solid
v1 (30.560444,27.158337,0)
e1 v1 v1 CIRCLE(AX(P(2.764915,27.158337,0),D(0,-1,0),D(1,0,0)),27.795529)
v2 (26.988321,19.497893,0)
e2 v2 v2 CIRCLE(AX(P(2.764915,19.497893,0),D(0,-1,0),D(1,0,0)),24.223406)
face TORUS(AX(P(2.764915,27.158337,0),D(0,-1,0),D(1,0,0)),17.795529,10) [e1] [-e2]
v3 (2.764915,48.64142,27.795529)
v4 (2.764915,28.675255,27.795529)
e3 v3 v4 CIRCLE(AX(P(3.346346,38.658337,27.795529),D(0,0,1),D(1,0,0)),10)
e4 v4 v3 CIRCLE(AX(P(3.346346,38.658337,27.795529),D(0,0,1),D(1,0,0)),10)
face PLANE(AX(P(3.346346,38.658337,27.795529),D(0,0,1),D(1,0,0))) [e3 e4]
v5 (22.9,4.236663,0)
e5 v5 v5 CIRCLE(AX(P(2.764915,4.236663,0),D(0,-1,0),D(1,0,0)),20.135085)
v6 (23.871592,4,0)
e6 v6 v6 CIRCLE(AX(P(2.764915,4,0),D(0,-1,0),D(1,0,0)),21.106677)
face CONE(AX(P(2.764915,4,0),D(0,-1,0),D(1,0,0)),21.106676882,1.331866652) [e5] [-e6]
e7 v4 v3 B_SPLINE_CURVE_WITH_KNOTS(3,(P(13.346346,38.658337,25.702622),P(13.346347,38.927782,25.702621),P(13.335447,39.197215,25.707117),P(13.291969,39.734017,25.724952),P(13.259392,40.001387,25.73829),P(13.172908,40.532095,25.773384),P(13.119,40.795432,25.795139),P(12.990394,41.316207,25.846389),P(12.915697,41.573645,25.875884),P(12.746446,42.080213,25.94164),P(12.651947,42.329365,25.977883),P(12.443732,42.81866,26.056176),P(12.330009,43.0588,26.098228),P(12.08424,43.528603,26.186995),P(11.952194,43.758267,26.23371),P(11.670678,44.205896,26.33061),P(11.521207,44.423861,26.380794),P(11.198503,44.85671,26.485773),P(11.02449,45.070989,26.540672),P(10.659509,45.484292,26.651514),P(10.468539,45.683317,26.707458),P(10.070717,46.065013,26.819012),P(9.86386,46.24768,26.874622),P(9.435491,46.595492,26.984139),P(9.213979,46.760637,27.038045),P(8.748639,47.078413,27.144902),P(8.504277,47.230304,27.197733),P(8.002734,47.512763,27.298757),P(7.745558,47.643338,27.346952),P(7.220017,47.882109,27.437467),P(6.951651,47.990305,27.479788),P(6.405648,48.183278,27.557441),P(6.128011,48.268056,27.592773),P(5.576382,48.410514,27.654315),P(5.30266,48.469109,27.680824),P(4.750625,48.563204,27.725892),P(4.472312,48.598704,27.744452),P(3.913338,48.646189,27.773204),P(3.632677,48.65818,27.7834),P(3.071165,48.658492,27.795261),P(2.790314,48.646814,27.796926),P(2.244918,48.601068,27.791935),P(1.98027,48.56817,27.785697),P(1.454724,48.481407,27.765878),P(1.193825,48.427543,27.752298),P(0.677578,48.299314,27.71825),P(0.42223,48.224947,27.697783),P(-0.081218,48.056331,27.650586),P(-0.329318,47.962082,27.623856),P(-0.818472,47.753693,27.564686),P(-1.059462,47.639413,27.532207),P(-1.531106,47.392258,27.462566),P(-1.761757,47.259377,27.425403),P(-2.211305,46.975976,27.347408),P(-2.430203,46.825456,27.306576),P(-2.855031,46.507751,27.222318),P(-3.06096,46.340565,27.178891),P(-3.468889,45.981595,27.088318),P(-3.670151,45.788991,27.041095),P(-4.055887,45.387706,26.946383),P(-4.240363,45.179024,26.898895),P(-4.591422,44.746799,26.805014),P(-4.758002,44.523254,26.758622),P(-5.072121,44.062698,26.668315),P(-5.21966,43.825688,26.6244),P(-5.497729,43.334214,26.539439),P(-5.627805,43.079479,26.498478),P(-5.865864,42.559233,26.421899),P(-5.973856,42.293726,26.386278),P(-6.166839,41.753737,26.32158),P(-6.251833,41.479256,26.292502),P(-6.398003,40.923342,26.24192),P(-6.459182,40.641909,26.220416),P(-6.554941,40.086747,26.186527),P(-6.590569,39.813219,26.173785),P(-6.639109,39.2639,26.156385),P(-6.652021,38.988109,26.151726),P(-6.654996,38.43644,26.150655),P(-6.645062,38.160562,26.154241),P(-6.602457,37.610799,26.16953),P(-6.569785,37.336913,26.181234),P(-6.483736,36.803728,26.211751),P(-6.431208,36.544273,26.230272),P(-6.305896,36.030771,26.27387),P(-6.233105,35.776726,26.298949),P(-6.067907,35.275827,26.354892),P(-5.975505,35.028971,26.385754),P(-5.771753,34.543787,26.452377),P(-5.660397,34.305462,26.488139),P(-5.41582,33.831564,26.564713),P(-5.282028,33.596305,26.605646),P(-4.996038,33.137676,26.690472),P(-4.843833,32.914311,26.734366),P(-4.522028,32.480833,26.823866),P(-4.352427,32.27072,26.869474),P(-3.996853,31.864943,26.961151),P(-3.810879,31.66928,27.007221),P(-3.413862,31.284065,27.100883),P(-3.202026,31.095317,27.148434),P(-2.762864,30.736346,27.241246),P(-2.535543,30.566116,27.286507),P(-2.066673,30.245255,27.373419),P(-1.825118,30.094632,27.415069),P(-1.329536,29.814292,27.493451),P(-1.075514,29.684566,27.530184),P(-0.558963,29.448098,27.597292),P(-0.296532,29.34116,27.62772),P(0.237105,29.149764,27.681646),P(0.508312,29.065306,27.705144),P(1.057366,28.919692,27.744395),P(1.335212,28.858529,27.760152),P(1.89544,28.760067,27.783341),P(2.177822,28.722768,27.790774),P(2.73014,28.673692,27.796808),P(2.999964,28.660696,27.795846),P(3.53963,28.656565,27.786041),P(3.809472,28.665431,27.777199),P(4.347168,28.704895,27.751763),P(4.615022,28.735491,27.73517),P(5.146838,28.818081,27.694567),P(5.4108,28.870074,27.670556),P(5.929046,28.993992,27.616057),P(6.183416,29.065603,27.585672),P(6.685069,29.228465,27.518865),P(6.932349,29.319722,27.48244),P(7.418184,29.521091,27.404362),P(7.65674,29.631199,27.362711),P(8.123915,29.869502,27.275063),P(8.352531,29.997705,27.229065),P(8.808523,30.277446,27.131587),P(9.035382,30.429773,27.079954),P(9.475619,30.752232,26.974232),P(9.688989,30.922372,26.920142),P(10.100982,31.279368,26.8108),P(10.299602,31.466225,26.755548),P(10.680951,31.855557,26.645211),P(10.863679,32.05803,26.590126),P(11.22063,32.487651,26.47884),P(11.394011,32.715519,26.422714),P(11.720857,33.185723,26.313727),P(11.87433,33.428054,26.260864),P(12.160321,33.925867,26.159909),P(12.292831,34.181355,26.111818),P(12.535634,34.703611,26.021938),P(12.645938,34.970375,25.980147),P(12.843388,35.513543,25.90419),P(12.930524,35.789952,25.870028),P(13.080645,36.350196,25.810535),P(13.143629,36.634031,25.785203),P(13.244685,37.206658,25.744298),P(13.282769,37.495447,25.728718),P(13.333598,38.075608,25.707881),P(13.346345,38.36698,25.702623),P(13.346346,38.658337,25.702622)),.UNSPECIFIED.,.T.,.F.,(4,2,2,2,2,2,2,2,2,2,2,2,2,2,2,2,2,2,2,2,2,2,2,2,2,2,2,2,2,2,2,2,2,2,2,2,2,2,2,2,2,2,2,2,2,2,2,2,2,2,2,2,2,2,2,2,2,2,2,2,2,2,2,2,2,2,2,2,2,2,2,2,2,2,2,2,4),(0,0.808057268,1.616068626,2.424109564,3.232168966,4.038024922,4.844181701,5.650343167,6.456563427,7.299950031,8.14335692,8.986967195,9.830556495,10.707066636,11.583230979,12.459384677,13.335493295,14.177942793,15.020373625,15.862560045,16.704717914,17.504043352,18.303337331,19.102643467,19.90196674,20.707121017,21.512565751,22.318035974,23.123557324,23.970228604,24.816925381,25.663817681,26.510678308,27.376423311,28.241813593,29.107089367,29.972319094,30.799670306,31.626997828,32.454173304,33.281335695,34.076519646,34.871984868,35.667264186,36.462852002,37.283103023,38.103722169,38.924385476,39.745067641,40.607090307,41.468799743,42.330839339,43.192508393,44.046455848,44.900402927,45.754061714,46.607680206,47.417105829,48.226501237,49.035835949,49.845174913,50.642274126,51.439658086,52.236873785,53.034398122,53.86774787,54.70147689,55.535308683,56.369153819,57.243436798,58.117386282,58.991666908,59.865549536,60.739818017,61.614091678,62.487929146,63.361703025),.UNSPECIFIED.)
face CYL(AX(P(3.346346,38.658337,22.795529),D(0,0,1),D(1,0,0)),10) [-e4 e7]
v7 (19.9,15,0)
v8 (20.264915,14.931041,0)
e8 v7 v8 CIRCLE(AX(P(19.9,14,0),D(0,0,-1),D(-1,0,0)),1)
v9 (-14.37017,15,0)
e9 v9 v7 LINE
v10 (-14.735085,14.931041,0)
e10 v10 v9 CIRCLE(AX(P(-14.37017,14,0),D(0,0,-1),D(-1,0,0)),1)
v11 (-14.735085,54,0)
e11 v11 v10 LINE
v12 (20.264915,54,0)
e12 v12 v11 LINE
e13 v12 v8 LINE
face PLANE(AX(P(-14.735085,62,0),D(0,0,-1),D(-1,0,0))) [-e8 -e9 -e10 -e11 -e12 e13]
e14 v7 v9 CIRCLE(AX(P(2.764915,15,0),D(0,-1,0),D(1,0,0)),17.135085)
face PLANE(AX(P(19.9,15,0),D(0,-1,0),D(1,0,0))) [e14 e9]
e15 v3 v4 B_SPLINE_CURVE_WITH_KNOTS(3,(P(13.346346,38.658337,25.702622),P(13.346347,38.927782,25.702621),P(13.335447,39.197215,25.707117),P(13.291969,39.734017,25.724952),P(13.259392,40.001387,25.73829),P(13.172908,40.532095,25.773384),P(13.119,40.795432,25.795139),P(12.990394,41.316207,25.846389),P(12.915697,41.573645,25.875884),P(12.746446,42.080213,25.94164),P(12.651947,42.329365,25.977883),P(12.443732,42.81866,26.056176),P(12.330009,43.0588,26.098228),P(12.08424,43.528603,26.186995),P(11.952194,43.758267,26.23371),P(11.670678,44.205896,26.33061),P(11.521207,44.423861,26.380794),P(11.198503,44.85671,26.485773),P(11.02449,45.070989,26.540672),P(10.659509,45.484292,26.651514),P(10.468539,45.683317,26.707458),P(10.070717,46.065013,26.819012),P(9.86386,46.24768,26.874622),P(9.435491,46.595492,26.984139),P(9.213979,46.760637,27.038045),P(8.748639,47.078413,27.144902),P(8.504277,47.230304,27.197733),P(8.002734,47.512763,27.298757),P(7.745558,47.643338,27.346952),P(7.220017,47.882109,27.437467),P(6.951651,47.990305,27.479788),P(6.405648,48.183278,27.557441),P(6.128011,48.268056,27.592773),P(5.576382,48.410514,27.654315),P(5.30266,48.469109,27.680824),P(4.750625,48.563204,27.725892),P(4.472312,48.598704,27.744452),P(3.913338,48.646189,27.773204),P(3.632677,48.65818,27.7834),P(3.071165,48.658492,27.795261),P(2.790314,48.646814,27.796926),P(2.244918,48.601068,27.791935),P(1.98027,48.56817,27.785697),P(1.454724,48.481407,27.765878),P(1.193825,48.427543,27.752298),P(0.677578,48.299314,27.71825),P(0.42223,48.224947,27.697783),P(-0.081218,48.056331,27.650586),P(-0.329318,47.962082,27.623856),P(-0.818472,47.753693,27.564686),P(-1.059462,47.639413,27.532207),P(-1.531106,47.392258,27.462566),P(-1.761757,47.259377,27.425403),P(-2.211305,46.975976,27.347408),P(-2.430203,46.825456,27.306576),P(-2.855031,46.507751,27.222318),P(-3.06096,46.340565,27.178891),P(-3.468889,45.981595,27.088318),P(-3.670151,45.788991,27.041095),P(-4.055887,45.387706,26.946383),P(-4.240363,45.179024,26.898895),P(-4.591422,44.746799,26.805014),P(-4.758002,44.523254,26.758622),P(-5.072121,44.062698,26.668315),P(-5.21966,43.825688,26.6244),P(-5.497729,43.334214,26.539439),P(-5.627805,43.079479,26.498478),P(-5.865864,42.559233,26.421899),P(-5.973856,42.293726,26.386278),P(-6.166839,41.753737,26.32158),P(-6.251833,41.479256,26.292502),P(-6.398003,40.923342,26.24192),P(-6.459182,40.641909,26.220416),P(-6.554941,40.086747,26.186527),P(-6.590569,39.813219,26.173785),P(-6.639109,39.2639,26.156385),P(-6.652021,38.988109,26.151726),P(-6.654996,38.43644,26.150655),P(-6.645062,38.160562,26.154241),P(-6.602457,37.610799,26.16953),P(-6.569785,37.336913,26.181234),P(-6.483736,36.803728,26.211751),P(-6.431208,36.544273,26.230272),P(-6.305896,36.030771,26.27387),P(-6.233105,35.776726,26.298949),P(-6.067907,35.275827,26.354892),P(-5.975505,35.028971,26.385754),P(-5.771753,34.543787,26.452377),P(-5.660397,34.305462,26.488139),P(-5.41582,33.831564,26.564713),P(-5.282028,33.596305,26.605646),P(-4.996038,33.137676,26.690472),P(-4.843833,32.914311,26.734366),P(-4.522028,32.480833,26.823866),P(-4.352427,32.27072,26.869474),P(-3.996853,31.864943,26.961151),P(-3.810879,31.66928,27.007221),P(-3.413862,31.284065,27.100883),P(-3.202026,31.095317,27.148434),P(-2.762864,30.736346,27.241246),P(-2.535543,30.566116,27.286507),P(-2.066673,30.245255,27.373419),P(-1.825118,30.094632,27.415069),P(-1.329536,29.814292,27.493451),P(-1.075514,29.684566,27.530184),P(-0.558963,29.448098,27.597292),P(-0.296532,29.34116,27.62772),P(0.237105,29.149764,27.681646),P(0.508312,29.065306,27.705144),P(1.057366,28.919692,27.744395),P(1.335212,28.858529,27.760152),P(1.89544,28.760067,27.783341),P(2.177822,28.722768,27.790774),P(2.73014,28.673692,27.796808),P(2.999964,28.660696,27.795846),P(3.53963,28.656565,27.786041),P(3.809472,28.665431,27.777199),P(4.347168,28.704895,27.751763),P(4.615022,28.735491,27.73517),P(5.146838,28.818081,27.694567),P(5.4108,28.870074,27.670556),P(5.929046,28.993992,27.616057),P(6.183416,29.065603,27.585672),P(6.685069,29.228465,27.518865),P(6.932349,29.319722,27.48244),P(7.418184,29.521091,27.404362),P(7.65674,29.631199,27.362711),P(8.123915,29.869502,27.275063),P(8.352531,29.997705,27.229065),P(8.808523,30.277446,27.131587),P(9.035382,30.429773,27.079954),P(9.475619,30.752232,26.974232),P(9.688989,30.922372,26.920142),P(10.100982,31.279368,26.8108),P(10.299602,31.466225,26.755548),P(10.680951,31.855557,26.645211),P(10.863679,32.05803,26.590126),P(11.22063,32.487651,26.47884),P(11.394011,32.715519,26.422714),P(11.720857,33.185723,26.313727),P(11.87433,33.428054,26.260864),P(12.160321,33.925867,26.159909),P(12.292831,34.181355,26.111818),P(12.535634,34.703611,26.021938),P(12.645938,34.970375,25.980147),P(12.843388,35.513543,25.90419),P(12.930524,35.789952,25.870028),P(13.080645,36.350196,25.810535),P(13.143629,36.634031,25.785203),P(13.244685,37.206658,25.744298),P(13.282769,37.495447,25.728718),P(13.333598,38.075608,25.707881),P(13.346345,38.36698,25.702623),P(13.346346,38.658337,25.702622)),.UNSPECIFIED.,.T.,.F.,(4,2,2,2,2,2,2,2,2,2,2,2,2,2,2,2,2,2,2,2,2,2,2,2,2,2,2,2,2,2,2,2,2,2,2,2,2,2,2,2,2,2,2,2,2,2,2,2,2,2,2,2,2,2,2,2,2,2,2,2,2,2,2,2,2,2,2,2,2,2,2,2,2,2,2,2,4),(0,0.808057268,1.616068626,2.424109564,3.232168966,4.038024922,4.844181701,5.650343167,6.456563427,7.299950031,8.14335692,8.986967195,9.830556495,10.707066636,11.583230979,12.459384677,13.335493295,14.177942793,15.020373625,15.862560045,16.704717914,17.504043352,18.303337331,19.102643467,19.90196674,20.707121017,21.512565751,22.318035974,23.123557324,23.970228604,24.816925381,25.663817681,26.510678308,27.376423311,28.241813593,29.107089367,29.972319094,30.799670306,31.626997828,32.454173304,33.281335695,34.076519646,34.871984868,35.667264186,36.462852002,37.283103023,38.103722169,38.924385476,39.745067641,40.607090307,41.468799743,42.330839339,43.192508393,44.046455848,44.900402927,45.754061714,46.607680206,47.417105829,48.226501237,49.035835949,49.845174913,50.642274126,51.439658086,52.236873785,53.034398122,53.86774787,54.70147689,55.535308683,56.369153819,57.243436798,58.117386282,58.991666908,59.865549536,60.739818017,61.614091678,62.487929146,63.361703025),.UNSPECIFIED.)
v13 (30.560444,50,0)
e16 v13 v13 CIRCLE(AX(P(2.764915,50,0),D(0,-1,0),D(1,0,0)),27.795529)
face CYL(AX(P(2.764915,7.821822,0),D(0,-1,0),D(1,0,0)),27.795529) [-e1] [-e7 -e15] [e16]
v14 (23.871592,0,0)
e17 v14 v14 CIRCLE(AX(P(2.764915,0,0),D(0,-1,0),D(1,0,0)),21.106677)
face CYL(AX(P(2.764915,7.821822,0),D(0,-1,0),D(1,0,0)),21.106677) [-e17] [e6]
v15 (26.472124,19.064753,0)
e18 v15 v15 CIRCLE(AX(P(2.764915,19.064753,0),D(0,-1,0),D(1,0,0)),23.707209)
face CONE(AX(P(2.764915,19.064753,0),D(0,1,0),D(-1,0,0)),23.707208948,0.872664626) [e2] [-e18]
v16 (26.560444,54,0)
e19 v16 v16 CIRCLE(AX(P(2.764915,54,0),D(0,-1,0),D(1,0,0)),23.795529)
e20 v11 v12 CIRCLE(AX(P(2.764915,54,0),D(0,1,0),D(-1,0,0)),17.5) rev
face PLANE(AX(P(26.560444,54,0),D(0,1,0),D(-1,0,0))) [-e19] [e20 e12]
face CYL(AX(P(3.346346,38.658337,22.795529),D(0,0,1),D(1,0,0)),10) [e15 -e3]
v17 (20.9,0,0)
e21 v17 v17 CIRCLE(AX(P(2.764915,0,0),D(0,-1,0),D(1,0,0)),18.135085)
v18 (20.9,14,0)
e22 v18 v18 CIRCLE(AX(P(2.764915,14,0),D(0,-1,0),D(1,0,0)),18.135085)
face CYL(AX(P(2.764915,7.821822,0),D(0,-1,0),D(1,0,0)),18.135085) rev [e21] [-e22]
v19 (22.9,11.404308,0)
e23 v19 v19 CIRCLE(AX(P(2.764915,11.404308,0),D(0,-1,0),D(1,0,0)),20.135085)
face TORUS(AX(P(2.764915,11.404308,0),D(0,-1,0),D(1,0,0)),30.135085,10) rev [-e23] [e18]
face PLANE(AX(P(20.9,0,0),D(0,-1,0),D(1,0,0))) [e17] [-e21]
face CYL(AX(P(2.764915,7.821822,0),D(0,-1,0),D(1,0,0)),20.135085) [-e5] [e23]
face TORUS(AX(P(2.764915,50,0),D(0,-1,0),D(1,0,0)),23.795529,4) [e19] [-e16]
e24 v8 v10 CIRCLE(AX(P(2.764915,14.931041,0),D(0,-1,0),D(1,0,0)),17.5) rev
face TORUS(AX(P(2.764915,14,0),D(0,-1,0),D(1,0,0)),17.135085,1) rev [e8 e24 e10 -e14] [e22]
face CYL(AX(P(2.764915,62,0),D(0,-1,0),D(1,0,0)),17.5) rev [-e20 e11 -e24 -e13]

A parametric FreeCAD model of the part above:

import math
import FreeCAD as App
import Part
import Sketcher
Q = App.Units.Quantity

doc = App.newDocument("Part")
body = doc.addObject("PartDesign::Body", "Body")

# Sketch on XY plane
sketch1 = body.newObject("Sketcher::SketchObject", "Sketch")
sketch1.AttachmentSupport = (doc.getObject("XY_Plane"), [""])
sketch1.MapMode = "FlatFace"
sketch1.addGeometry([
    Part.LineSegment(App.Vector(20.9, 0, 0), App.Vector(23.9, 0, 0)),  # 0
    Part.LineSegment(App.Vector(23.9, 0, 0), App.Vector(23.9, 4, 0)),  # 1
    Part.LineSegment(App.Vector(23.9, 4, 0), App.Vector(22.9, 4.2, 0)),  # 2
    Part.LineSegment(App.Vector(22.9, 4.2, 0), App.Vector(22.9, 11.4, 0)),  # 3
    Part.ArcOfCircle(Part.Circle(App.Vector(32.9, 11.4, 0), App.Vector(0, 0, 1), 10), math.radians(130), math.radians(180)),  # 4
    Part.LineSegment(App.Vector(26.5, 19.1, 0), App.Vector(27, 19.5, 0)),  # 5
    Part.ArcOfCircle(Part.Circle(App.Vector(20.6, 27.2, 0), App.Vector(0, 0, 1), 10), math.radians(-50), math.radians(0)),  # 6
    Part.LineSegment(App.Vector(30.6, 27.2, 0), App.Vector(30.6, 50, 0)),  # 7
    Part.ArcOfCircle(Part.Circle(App.Vector(26.6, 50, 0), App.Vector(0, 0, 1), 4), math.radians(0), math.radians(90)),  # 8
    Part.LineSegment(App.Vector(26.6, 54, 0), App.Vector(2.8, 54, 0)),  # 9
    Part.LineSegment(App.Vector(2.8, 54, 0), App.Vector(2.8, 15, 0)),  # 10
    Part.LineSegment(App.Vector(2.8, 15, 0), App.Vector(19.9, 15, 0)),  # 11
    Part.ArcOfCircle(Part.Circle(App.Vector(19.9, 14, 0), App.Vector(0, 0, 1), 1), math.radians(0), math.radians(90)),  # 12
    Part.LineSegment(App.Vector(20.9, 14, 0), App.Vector(20.9, 0, 0)),  # 13
], False)
sketch1.addGeometry(Part.LineSegment(App.Vector(2.8, 0, 0), App.Vector(2.8, 54, 0)), True)  # axis
sketch1.addConstraint([
    Sketcher.Constraint("Coincident", 0, 2, 1, 1),
    Sketcher.Constraint("Coincident", 1, 2, 2, 1),
    Sketcher.Constraint("Coincident", 2, 2, 3, 1),
    Sketcher.Constraint("Tangent", 3, 2, 4, 2),
    Sketcher.Constraint("Tangent", 4, 1, 5, 1),
    Sketcher.Constraint("Tangent", 5, 2, 6, 1),
    Sketcher.Constraint("Tangent", 6, 2, 7, 1),
    Sketcher.Constraint("Tangent", 7, 2, 8, 1),
    Sketcher.Constraint("Tangent", 8, 2, 9, 1),
    Sketcher.Constraint("Coincident", 9, 2, 10, 1),
    Sketcher.Constraint("Coincident", 10, 2, 11, 1),
    Sketcher.Constraint("Tangent", 11, 2, 12, 2),
    Sketcher.Constraint("Tangent", 12, 1, 13, 1),
    Sketcher.Constraint("Coincident", 13, 2, 0, 1),
    Sketcher.Constraint("Horizontal", 0),
    Sketcher.Constraint("Vertical", 1),
    Sketcher.Constraint("Vertical", 3),
    Sketcher.Constraint("Vertical", 7),
    Sketcher.Constraint("Horizontal", 9),
    Sketcher.Constraint("Vertical", 10),
    Sketcher.Constraint("Horizontal", 11),
    Sketcher.Constraint("Vertical", 13),
    Sketcher.Constraint("Vertical", 14),
    Sketcher.Constraint("Coincident", 14, 2, 9, 2),
    Sketcher.Constraint("Equal", 4, 6),
    Sketcher.Constraint("PointOnObject", 0, 2, -1),
    Sketcher.Constraint("PointOnObject", 14, 1, -1),
    Sketcher.Constraint("Radius", 4, 10.0),
    Sketcher.Constraint("Radius", 8, 4.0),
    Sketcher.Constraint("Radius", 12, 1.0),
    Sketcher.Constraint("DistanceY", 1, 1, 1, 2, 4.0),
    Sketcher.Constraint("DistanceY", 10, 2, 10, 1, 39.0),
    Sketcher.Constraint("DistanceY", 13, 2, 13, 1, 14.0),
    Sketcher.Constraint("Angle", 5, Q("40 deg")),
    Sketcher.Constraint("Distance", 2, 1.0),
    Sketcher.Constraint("DistanceX", 12, 3, 4, 3, 13.0),
    Sketcher.Constraint("DistanceX", -1, 1, 4, 3, 32.9),
    Sketcher.Constraint("DistanceX", 0, 1, 0, 2, 2.971592),
    Sketcher.Constraint("DistanceX", 9, 2, 9, 1, 23.795529),
    Sketcher.Constraint("DistanceX", 11, 1, 11, 2, 17.135085),
    Sketcher.Constraint("DistanceY", 3, 1, 3, 2, 7.167645),
])
revolution = body.newObject("PartDesign::Revolution", "Revolution")
revolution.Profile = sketch1
revolution.ReferenceAxis = (sketch1, ["Axis0"])
revolution.Angle = 360

# Sketch on XY plane
sketch2 = body.newObject("Sketcher::SketchObject", "Sketch001")
sketch2.AttachmentSupport = (doc.getObject("XY_Plane"), [""])
sketch2.MapMode = "FlatFace"
sketch2.AttachmentOffset = App.Placement(App.Vector(0, 0, 27.795529), App.Rotation())
sketch2.addGeometry(Part.Circle(App.Vector(3, 39, 0), App.Vector(0, 0, 1), 10), False)
sketch2.addConstraint([
    Sketcher.Constraint("Diameter", 0, 20.0),
    Sketcher.Constraint("DistanceX", -1, 1, 0, 3, 3.346346),
    Sketcher.Constraint("DistanceY", -1, 1, 0, 3, 38.658337),
])
pad1 = body.newObject("PartDesign::Pad", "Pad")
pad1.Profile = sketch2
pad1.Length = 5
pad1.Reversed = True

# Sketch on XZ plane
sketch3 = body.newObject("Sketcher::SketchObject", "Sketch002")
sketch3.AttachmentSupport = (doc.getObject("XZ_Plane"), [""])
sketch3.MapMode = "FlatFace"
sketch3.AttachmentOffset = App.Placement(App.Vector(0, 0, -17), App.Rotation())
sketch3.addGeometry([
    Part.LineSegment(App.Vector(-15, 0, 0), App.Vector(20, 0, 0)),
    Part.ArcOfCircle(Part.Circle(App.Vector(3, 0, 0), App.Vector(0, 0, 1), 18), math.radians(180), math.radians(360)),
], False)
sketch3.addConstraint([
    Sketcher.Constraint("Coincident", 0, 1, 1, 1),
    Sketcher.Constraint("Coincident", 1, 2, 0, 2),
    Sketcher.Constraint("Horizontal", 0),
    Sketcher.Constraint("PointOnObject", 1, 3, -1),
    Sketcher.Constraint("PointOnObject", 0, 1, -1),
    Sketcher.Constraint("Radius", 1, 17.5),
    Sketcher.Constraint("DistanceX", -1, 1, 1, 3, 2.764915),
])
pocket1 = body.newObject("PartDesign::Pocket", "Pocket")
pocket1.Profile = sketch3
pocket1.Type = "ThroughAll"
pocket1.Midplane = True

doc.recompute()
